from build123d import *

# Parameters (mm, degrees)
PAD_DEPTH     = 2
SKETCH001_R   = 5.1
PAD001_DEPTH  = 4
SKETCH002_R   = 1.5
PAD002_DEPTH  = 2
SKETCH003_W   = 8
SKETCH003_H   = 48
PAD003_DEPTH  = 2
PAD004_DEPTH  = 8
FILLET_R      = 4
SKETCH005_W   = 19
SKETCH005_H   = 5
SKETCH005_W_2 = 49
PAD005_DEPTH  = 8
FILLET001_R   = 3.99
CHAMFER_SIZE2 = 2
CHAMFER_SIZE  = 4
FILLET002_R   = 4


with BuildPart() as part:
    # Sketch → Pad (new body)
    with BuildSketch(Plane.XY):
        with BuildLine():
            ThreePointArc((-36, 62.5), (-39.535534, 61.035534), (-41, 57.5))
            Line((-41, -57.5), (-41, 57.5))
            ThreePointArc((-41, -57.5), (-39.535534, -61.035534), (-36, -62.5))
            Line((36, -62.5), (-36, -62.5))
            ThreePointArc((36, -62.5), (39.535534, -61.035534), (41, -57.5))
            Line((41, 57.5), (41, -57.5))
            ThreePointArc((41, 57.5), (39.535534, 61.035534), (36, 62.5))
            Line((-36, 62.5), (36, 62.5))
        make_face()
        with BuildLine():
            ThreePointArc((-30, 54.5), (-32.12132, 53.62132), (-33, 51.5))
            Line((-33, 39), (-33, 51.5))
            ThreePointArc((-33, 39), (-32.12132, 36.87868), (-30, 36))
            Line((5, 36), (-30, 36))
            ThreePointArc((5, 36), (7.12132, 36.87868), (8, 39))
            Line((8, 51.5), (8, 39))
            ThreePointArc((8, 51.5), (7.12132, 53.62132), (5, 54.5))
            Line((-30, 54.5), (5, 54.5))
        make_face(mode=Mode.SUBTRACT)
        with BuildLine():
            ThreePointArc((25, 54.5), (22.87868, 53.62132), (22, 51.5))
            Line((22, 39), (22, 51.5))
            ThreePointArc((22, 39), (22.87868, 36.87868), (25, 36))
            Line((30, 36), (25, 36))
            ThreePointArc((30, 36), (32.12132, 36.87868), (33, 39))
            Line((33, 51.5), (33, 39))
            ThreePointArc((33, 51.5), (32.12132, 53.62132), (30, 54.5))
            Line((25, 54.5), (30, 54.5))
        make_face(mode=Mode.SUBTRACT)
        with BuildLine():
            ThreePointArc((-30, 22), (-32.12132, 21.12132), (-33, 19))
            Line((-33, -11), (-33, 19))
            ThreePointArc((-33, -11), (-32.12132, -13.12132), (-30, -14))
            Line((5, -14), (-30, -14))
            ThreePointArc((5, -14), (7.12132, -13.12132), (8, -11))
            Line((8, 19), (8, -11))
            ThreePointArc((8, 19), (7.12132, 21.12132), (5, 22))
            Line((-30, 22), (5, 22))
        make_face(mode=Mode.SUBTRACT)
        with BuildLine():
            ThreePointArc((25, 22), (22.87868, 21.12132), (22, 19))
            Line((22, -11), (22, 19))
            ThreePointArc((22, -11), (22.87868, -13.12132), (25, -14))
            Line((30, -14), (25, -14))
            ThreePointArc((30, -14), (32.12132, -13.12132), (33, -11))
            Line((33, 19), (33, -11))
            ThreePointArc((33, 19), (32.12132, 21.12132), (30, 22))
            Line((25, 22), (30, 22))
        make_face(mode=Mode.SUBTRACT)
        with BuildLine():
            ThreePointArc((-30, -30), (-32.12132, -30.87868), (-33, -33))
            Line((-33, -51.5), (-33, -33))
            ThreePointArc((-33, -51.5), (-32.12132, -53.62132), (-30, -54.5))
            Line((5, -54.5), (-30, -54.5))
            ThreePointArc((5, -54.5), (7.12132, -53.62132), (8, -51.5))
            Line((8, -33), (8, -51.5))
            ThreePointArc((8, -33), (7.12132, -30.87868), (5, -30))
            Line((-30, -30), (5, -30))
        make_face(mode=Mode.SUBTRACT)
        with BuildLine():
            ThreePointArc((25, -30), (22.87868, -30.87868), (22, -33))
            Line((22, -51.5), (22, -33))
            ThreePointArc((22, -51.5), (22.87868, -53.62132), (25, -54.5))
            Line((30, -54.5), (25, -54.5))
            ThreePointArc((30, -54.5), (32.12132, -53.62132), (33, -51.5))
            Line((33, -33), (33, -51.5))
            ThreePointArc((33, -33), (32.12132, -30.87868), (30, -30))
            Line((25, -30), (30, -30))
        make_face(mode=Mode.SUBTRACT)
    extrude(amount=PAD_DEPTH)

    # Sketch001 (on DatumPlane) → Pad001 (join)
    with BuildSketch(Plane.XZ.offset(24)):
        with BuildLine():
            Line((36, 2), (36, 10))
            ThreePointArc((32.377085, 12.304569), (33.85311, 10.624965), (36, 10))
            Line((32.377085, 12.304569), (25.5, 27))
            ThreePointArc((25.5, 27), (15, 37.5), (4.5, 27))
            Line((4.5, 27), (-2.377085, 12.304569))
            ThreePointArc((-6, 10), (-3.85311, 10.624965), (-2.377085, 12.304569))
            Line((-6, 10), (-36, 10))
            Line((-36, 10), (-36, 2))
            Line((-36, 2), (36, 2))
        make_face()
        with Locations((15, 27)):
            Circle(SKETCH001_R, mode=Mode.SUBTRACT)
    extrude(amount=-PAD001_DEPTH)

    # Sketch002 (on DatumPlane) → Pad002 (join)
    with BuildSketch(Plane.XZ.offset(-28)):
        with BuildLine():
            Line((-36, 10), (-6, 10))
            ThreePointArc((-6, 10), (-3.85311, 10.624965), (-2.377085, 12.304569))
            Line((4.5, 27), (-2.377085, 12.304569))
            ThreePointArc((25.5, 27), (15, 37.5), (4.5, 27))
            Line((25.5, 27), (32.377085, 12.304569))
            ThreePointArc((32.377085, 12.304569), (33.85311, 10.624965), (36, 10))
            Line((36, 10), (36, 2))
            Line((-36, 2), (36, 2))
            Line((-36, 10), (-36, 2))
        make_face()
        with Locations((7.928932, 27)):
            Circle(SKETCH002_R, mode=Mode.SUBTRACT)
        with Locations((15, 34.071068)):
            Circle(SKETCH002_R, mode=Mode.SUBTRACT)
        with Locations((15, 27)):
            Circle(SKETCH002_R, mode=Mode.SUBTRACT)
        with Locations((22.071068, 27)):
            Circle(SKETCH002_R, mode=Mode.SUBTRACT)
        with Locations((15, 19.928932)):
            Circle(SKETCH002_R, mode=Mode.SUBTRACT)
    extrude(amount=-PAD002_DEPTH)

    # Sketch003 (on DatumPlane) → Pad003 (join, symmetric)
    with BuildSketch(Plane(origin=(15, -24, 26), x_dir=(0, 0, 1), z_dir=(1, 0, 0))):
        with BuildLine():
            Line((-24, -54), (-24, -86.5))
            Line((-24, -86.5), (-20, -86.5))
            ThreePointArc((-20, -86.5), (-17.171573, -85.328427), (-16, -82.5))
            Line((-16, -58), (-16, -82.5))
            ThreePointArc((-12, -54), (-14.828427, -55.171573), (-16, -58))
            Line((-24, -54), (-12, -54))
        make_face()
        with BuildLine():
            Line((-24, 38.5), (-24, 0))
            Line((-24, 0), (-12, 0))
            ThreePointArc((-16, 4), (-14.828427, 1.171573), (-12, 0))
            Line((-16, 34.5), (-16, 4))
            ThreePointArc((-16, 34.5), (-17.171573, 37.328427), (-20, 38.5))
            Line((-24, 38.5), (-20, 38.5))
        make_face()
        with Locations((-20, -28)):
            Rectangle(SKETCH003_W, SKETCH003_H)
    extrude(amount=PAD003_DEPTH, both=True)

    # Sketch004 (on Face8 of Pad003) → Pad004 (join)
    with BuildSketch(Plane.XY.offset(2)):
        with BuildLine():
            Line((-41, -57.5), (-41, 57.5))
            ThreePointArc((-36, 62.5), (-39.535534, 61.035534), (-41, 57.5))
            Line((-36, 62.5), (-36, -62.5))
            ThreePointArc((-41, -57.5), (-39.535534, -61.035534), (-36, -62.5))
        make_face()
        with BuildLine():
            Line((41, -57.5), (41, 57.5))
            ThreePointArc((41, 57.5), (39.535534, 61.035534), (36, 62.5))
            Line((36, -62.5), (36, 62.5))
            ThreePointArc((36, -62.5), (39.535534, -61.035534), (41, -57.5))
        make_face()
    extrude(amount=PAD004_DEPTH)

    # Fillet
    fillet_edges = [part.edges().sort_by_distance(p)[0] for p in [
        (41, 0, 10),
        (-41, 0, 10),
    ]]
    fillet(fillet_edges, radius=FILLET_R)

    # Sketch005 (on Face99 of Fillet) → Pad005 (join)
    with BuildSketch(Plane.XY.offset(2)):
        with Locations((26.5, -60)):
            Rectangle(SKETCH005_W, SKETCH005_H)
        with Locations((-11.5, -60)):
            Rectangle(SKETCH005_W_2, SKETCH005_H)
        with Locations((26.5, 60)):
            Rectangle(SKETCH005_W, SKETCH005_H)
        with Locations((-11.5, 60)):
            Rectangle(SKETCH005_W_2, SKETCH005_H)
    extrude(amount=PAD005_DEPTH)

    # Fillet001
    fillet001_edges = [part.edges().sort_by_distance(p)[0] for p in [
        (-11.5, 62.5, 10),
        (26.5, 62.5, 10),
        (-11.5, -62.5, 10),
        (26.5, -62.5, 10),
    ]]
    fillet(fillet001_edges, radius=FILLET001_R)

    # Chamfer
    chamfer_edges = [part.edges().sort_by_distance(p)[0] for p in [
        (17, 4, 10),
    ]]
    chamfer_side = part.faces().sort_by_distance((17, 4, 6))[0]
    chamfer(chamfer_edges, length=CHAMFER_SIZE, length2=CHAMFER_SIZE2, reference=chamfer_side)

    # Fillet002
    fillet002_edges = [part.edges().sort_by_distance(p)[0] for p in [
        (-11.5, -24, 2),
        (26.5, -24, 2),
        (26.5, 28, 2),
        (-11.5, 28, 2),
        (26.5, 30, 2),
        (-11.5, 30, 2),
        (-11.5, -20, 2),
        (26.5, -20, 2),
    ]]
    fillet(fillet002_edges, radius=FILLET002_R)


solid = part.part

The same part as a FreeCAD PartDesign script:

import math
import FreeCAD as App
import Part
import Sketcher

V = App.Vector


def edges_at(feature, points):
    """Names of the edges that pass closest to the given points."""
    edges = feature.Shape.Edges
    near = lambda p: min(range(len(edges)), key=lambda i: edges[i].distToShape(Part.Vertex(*p))[0])
    return sorted({f"Edge{near(p) + 1}" for p in points})


def add_polygon(sketch, points):
    """Adds a closed chain of lines whose ends are joined by coincident constraints."""
    first, n = sketch.GeometryCount, len(points)
    for a, b in zip(points, points[1:] + points[:1]):
        sketch.addGeometry(Part.LineSegment(App.Vector(*a, 0), App.Vector(*b, 0)), False)
    for i in range(n):
        sketch.addConstraint(Sketcher.Constraint("Coincident", first + i, 2, first + (i + 1) % n, 1))

doc = App.newDocument("Part")
body = doc.addObject("PartDesign::Body", "Body")

# Sketch on XY plane
sketch1 = body.newObject("Sketcher::SketchObject", "Sketch")
sketch1.AttachmentSupport = (doc.getObject("XY_Plane"), [""])
sketch1.MapMode = "FlatFace"
sketch1.addGeometry(Part.ArcOfCircle(Part.Circle(V(-36, 57.5, 0), V(0, 0, 1), 5), math.radians(90), math.radians(180)), False)
sketch1.addGeometry(Part.LineSegment(V(-41, 57.5, 0), V(-41, -57.5, 0)), False)
sketch1.addGeometry(Part.ArcOfCircle(Part.Circle(V(-36, -57.5, 0), V(0, 0, 1), 5), math.radians(180), math.radians(270)), False)
sketch1.addGeometry(Part.LineSegment(V(-36, -62.5, 0), V(36, -62.5, 0)), False)
sketch1.addGeometry(Part.ArcOfCircle(Part.Circle(V(36, -57.5, 0), V(0, 0, 1), 5), math.radians(-90), math.radians(0)), False)
sketch1.addGeometry(Part.LineSegment(V(41, -57.5, 0), V(41, 57.5, 0)), False)
sketch1.addGeometry(Part.ArcOfCircle(Part.Circle(V(36, 57.5, 0), V(0, 0, 1), 5), math.radians(0), math.radians(90)), False)
sketch1.addGeometry(Part.LineSegment(V(36, 62.5, 0), V(-36, 62.5, 0)), False)
sketch1.addGeometry(Part.ArcOfCircle(Part.Circle(V(-30, -33, 0), V(0, 0, 1), 3), math.radians(90), math.radians(180)), False)
sketch1.addGeometry(Part.LineSegment(V(-30, -30, 0), V(5, -30, 0)), False)
sketch1.addGeometry(Part.ArcOfCircle(Part.Circle(V(5, -33, 0), V(0, 0, 1), 3), math.radians(0), math.radians(90)), False)
sketch1.addGeometry(Part.LineSegment(V(8, -33, 0), V(8, -51.5, 0)), False)
sketch1.addGeometry(Part.ArcOfCircle(Part.Circle(V(5, -51.5, 0), V(0, 0, 1), 3), math.radians(-90), math.radians(0)), False)
sketch1.addGeometry(Part.LineSegment(V(5, -54.5, 0), V(-30, -54.5, 0)), False)
sketch1.addGeometry(Part.ArcOfCircle(Part.Circle(V(-30, -51.5, 0), V(0, 0, 1), 3), math.radians(-180), math.radians(-90)), False)
sketch1.addGeometry(Part.LineSegment(V(-33, -51.5, 0), V(-33, -33, 0)), False)
sketch1.addGeometry(Part.ArcOfCircle(Part.Circle(V(25, -33, 0), V(0, 0, 1), 3), math.radians(90), math.radians(180)), False)
sketch1.addGeometry(Part.LineSegment(V(25, -30, 0), V(30, -30, 0)), False)
sketch1.addGeometry(Part.ArcOfCircle(Part.Circle(V(30, -33, 0), V(0, 0, 1), 3), math.radians(0), math.radians(90)), False)
sketch1.addGeometry(Part.LineSegment(V(33, -33, 0), V(33, -51.5, 0)), False)
sketch1.addGeometry(Part.ArcOfCircle(Part.Circle(V(30, -51.5, 0), V(0, 0, 1), 3), math.radians(-90), math.radians(0)), False)
sketch1.addGeometry(Part.LineSegment(V(30, -54.5, 0), V(25, -54.5, 0)), False)
sketch1.addGeometry(Part.ArcOfCircle(Part.Circle(V(25, -51.5, 0), V(0, 0, 1), 3), math.radians(-180), math.radians(-90)), False)
sketch1.addGeometry(Part.LineSegment(V(22, -51.5, 0), V(22, -33, 0)), False)
sketch1.addGeometry(Part.ArcOfCircle(Part.Circle(V(-30, 19, 0), V(0, 0, 1), 3), math.radians(90), math.radians(180)), False)
sketch1.addGeometry(Part.LineSegment(V(-30, 22, 0), V(5, 22, 0)), False)
sketch1.addGeometry(Part.ArcOfCircle(Part.Circle(V(5, 19, 0), V(0, 0, 1), 3), math.radians(0), math.radians(90)), False)
sketch1.addGeometry(Part.LineSegment(V(8, 19, 0), V(8, -11, 0)), False)
sketch1.addGeometry(Part.ArcOfCircle(Part.Circle(V(5, -11, 0), V(0, 0, 1), 3), math.radians(-90), math.radians(0)), False)
sketch1.addGeometry(Part.LineSegment(V(5, -14, 0), V(-30, -14, 0)), False)
sketch1.addGeometry(Part.ArcOfCircle(Part.Circle(V(-30, -11, 0), V(0, 0, 1), 3), math.radians(-180), math.radians(-90)), False)
sketch1.addGeometry(Part.LineSegment(V(-33, -11, 0), V(-33, 19, 0)), False)
sketch1.addGeometry(Part.ArcOfCircle(Part.Circle(V(-30, 51.5, 0), V(0, 0, 1), 3), math.radians(90), math.radians(180)), False)
sketch1.addGeometry(Part.LineSegment(V(-30, 54.5, 0), V(5, 54.5, 0)), False)
sketch1.addGeometry(Part.ArcOfCircle(Part.Circle(V(5, 51.5, 0), V(0, 0, 1), 3), math.radians(0), math.radians(90)), False)
sketch1.addGeometry(Part.LineSegment(V(8, 51.5, 0), V(8, 39, 0)), False)
sketch1.addGeometry(Part.ArcOfCircle(Part.Circle(V(5, 39, 0), V(0, 0, 1), 3), math.radians(-90), math.radians(0)), False)
sketch1.addGeometry(Part.LineSegment(V(5, 36, 0), V(-30, 36, 0)), False)
sketch1.addGeometry(Part.ArcOfCircle(Part.Circle(V(-30, 39, 0), V(0, 0, 1), 3), math.radians(-180), math.radians(-90)), False)
sketch1.addGeometry(Part.LineSegment(V(-33, 39, 0), V(-33, 51.5, 0)), False)
sketch1.addGeometry(Part.ArcOfCircle(Part.Circle(V(25, 19, 0), V(0, 0, 1), 3), math.radians(90), math.radians(180)), False)
sketch1.addGeometry(Part.LineSegment(V(25, 22, 0), V(30, 22, 0)), False)
sketch1.addGeometry(Part.ArcOfCircle(Part.Circle(V(30, 19, 0), V(0, 0, 1), 3), math.radians(0), math.radians(90)), False)
sketch1.addGeometry(Part.LineSegment(V(33, 19, 0), V(33, -11, 0)), False)
sketch1.addGeometry(Part.ArcOfCircle(Part.Circle(V(30, -11, 0), V(0, 0, 1), 3), math.radians(-90), math.radians(0)), False)
sketch1.addGeometry(Part.LineSegment(V(30, -14, 0), V(25, -14, 0)), False)
sketch1.addGeometry(Part.ArcOfCircle(Part.Circle(V(25, -11, 0), V(0, 0, 1), 3), math.radians(-180), math.radians(-90)), False)
sketch1.addGeometry(Part.LineSegment(V(22, -11, 0), V(22, 19, 0)), False)
sketch1.addGeometry(Part.ArcOfCircle(Part.Circle(V(25, 51.5, 0), V(0, 0, 1), 3), math.radians(90), math.radians(180)), False)
sketch1.addGeometry(Part.LineSegment(V(25, 54.5, 0), V(30, 54.5, 0)), False)
sketch1.addGeometry(Part.ArcOfCircle(Part.Circle(V(30, 51.5, 0), V(0, 0, 1), 3), math.radians(0), math.radians(90)), False)
sketch1.addGeometry(Part.LineSegment(V(33, 51.5, 0), V(33, 39, 0)), False)
sketch1.addGeometry(Part.ArcOfCircle(Part.Circle(V(30, 39, 0), V(0, 0, 1), 3), math.radians(-90), math.radians(0)), False)
sketch1.addGeometry(Part.LineSegment(V(30, 36, 0), V(25, 36, 0)), False)
sketch1.addGeometry(Part.ArcOfCircle(Part.Circle(V(25, 39, 0), V(0, 0, 1), 3), math.radians(-180), math.radians(-90)), False)
sketch1.addGeometry(Part.LineSegment(V(22, 39, 0), V(22, 51.5, 0)), False)
sketch1.addConstraint(Sketcher.Constraint("Tangent", 0, 2, 1, 1))
sketch1.addConstraint(Sketcher.Constraint("Tangent", 1, 2, 2, 1))
sketch1.addConstraint(Sketcher.Constraint("Tangent", 2, 2, 3, 1))
sketch1.addConstraint(Sketcher.Constraint("Tangent", 3, 2, 4, 1))
sketch1.addConstraint(Sketcher.Constraint("Tangent", 4, 2, 5, 1))
sketch1.addConstraint(Sketcher.Constraint("Tangent", 5, 2, 6, 1))
sketch1.addConstraint(Sketcher.Constraint("Tangent", 6, 2, 7, 1))
sketch1.addConstraint(Sketcher.Constraint("Tangent", 7, 2, 0, 1))
sketch1.addConstraint(Sketcher.Constraint("Tangent", 8, 1, 9, 1))
sketch1.addConstraint(Sketcher.Constraint("Tangent", 9, 2, 10, 2))
sketch1.addConstraint(Sketcher.Constraint("Tangent", 10, 1, 11, 1))
sketch1.addConstraint(Sketcher.Constraint("Tangent", 11, 2, 12, 2))
sketch1.addConstraint(Sketcher.Constraint("Tangent", 12, 1, 13, 1))
sketch1.addConstraint(Sketcher.Constraint("Tangent", 13, 2, 14, 2))
sketch1.addConstraint(Sketcher.Constraint("Tangent", 14, 1, 15, 1))
sketch1.addConstraint(Sketcher.Constraint("Tangent", 15, 2, 8, 2))
sketch1.addConstraint(Sketcher.Constraint("Tangent", 16, 1, 17, 1))
sketch1.addConstraint(Sketcher.Constraint("Tangent", 17, 2, 18, 2))
sketch1.addConstraint(Sketcher.Constraint("Tangent", 18, 1, 19, 1))
sketch1.addConstraint(Sketcher.Constraint("Tangent", 19, 2, 20, 2))
sketch1.addConstraint(Sketcher.Constraint("Tangent", 20, 1, 21, 1))
sketch1.addConstraint(Sketcher.Constraint("Tangent", 21, 2, 22, 2))
sketch1.addConstraint(Sketcher.Constraint("Tangent", 22, 1, 23, 1))
sketch1.addConstraint(Sketcher.Constraint("Tangent", 23, 2, 16, 2))
sketch1.addConstraint(Sketcher.Constraint("Tangent", 24, 1, 25, 1))
sketch1.addConstraint(Sketcher.Constraint("Tangent", 25, 2, 26, 2))
sketch1.addConstraint(Sketcher.Constraint("Tangent", 26, 1, 27, 1))
sketch1.addConstraint(Sketcher.Constraint("Tangent", 27, 2, 28, 2))
sketch1.addConstraint(Sketcher.Constraint("Tangent", 28, 1, 29, 1))
sketch1.addConstraint(Sketcher.Constraint("Tangent", 29, 2, 30, 2))
sketch1.addConstraint(Sketcher.Constraint("Tangent", 30, 1, 31, 1))
sketch1.addConstraint(Sketcher.Constraint("Tangent", 31, 2, 24, 2))
sketch1.addConstraint(Sketcher.Constraint("Tangent", 32, 1, 33, 1))
sketch1.addConstraint(Sketcher.Constraint("Tangent", 33, 2, 34, 2))
sketch1.addConstraint(Sketcher.Constraint("Tangent", 34, 1, 35, 1))
sketch1.addConstraint(Sketcher.Constraint("Tangent", 35, 2, 36, 2))
sketch1.addConstraint(Sketcher.Constraint("Tangent", 36, 1, 37, 1))
sketch1.addConstraint(Sketcher.Constraint("Tangent", 37, 2, 38, 2))
sketch1.addConstraint(Sketcher.Constraint("Tangent", 38, 1, 39, 1))
sketch1.addConstraint(Sketcher.Constraint("Tangent", 39, 2, 32, 2))
sketch1.addConstraint(Sketcher.Constraint("Tangent", 40, 1, 41, 1))
sketch1.addConstraint(Sketcher.Constraint("Tangent", 41, 2, 42, 2))
sketch1.addConstraint(Sketcher.Constraint("Tangent", 42, 1, 43, 1))
sketch1.addConstraint(Sketcher.Constraint("Tangent", 43, 2, 44, 2))
sketch1.addConstraint(Sketcher.Constraint("Tangent", 44, 1, 45, 1))
sketch1.addConstraint(Sketcher.Constraint("Tangent", 45, 2, 46, 2))
sketch1.addConstraint(Sketcher.Constraint("Tangent", 46, 1, 47, 1))
sketch1.addConstraint(Sketcher.Constraint("Tangent", 47, 2, 40, 2))
sketch1.addConstraint(Sketcher.Constraint("Tangent", 48, 1, 49, 1))
sketch1.addConstraint(Sketcher.Constraint("Tangent", 49, 2, 50, 2))
sketch1.addConstraint(Sketcher.Constraint("Tangent", 50, 1, 51, 1))
sketch1.addConstraint(Sketcher.Constraint("Tangent", 51, 2, 52, 2))
sketch1.addConstraint(Sketcher.Constraint("Tangent", 52, 1, 53, 1))
sketch1.addConstraint(Sketcher.Constraint("Tangent", 53, 2, 54, 2))
sketch1.addConstraint(Sketcher.Constraint("Tangent", 54, 1, 55, 1))
sketch1.addConstraint(Sketcher.Constraint("Tangent", 55, 2, 48, 2))
sketch1.addConstraint(Sketcher.Constraint("Vertical", 1))
sketch1.addConstraint(Sketcher.Constraint("Horizontal", 3))
sketch1.addConstraint(Sketcher.Constraint("Vertical", 5))
sketch1.addConstraint(Sketcher.Constraint("Horizontal", 7))
sketch1.addConstraint(Sketcher.Constraint("Horizontal", 9))
sketch1.addConstraint(Sketcher.Constraint("Vertical", 11))
sketch1.addConstraint(Sketcher.Constraint("Horizontal", 13))
sketch1.addConstraint(Sketcher.Constraint("Vertical", 15))
sketch1.addConstraint(Sketcher.Constraint("Horizontal", 17))
sketch1.addConstraint(Sketcher.Constraint("Vertical", 19))
sketch1.addConstraint(Sketcher.Constraint("Horizontal", 21))
sketch1.addConstraint(Sketcher.Constraint("Vertical", 23))
sketch1.addConstraint(Sketcher.Constraint("Horizontal", 25))
sketch1.addConstraint(Sketcher.Constraint("Vertical", 27))
sketch1.addConstraint(Sketcher.Constraint("Horizontal", 29))
sketch1.addConstraint(Sketcher.Constraint("Vertical", 31))
sketch1.addConstraint(Sketcher.Constraint("Horizontal", 33))
sketch1.addConstraint(Sketcher.Constraint("Vertical", 35))
sketch1.addConstraint(Sketcher.Constraint("Horizontal", 37))
sketch1.addConstraint(Sketcher.Constraint("Vertical", 39))
sketch1.addConstraint(Sketcher.Constraint("Horizontal", 41))
sketch1.addConstraint(Sketcher.Constraint("Vertical", 43))
sketch1.addConstraint(Sketcher.Constraint("Horizontal", 45))
sketch1.addConstraint(Sketcher.Constraint("Vertical", 47))
sketch1.addConstraint(Sketcher.Constraint("Horizontal", 49))
sketch1.addConstraint(Sketcher.Constraint("Vertical", 51))
sketch1.addConstraint(Sketcher.Constraint("Horizontal", 53))
sketch1.addConstraint(Sketcher.Constraint("Vertical", 55))
sketch1.addConstraint(Sketcher.Constraint("Equal", 0, 2))
sketch1.addConstraint(Sketcher.Constraint("Equal", 2, 4))
sketch1.addConstraint(Sketcher.Constraint("Equal", 4, 6))
sketch1.addConstraint(Sketcher.Constraint("Equal", 8, 10))
sketch1.addConstraint(Sketcher.Constraint("Equal", 10, 12))
sketch1.addConstraint(Sketcher.Constraint("Equal", 12, 14))
sketch1.addConstraint(Sketcher.Constraint("Equal", 14, 16))
sketch1.addConstraint(Sketcher.Constraint("Equal", 16, 18))
sketch1.addConstraint(Sketcher.Constraint("Equal", 18, 20))
sketch1.addConstraint(Sketcher.Constraint("Equal", 20, 22))
sketch1.addConstraint(Sketcher.Constraint("Equal", 22, 24))
sketch1.addConstraint(Sketcher.Constraint("Equal", 24, 26))
sketch1.addConstraint(Sketcher.Constraint("Equal", 26, 28))
sketch1.addConstraint(Sketcher.Constraint("Equal", 28, 30))
sketch1.addConstraint(Sketcher.Constraint("Equal", 30, 32))
sketch1.addConstraint(Sketcher.Constraint("Equal", 32, 34))
sketch1.addConstraint(Sketcher.Constraint("Equal", 34, 36))
sketch1.addConstraint(Sketcher.Constraint("Equal", 36, 38))
sketch1.addConstraint(Sketcher.Constraint("Equal", 38, 40))
sketch1.addConstraint(Sketcher.Constraint("Equal", 40, 42))
sketch1.addConstraint(Sketcher.Constraint("Equal", 42, 44))
sketch1.addConstraint(Sketcher.Constraint("Equal", 44, 46))
sketch1.addConstraint(Sketcher.Constraint("Equal", 46, 48))
sketch1.addConstraint(Sketcher.Constraint("Equal", 48, 50))
sketch1.addConstraint(Sketcher.Constraint("Equal", 50, 52))
sketch1.addConstraint(Sketcher.Constraint("Equal", 52, 54))
sketch1.addConstraint(Sketcher.Constraint("Symmetric", 0, 3, 4, 3, -1, 1))
sketch1.addConstraint(Sketcher.Constraint("Symmetric", 20, 3, 32, 3, -1, 1))
sketch1.addConstraint(Sketcher.Constraint("Symmetric", 14, 3, 50, 3, -1, 1))
sketch1.addConstraint(Sketcher.Constraint("Symmetric", 8, 3, 18, 3, -2))
sketch1.addConstraint(Sketcher.Constraint("Symmetric", 24, 3, 42, 3, -2))
sketch1.addConstraint(Sketcher.Constraint("Symmetric", 12, 3, 34, 3, -1))
sketch1.addConstraint(Sketcher.Constraint("Horizontal", 30, 3, 44, 3))
sketch1.addConstraint(Sketcher.Constraint("Horizontal", 38, 3, 52, 3))
sketch1.addConstraint(Sketcher.Constraint("Vertical", 14, 3, 24, 3))
sketch1.addConstraint(Sketcher.Constraint("Vertical", 12, 3, 26, 3))
sketch1.addConstraint(Sketcher.Constraint("Vertical", 22, 3, 40, 3))
sketch1.addConstraint(Sketcher.Constraint("Vertical", 46, 3, 48, 3))
sketch1.addConstraint(Sketcher.Constraint("Radius", 0, 5.0))
sketch1.addConstraint(Sketcher.Constraint("Radius", 8, 3.000001))
sketch1.addConstraint(Sketcher.Constraint("DistanceX", 3, 1, 3, 2, 72.0))
sketch1.addConstraint(Sketcher.Constraint("DistanceX", 9, 1, 9, 2, 35.0))
sketch1.addConstraint(Sketcher.Constraint("DistanceX", 17, 1, 17, 2, 5.0))
sketch1.addConstraint(Sketcher.Constraint("DistanceY", 1, 2, 1, 1, 115.0))
sketch1.addConstraint(Sketcher.Constraint("DistanceY", 27, 2, 27, 1, 30.0))
sketch1.addConstraint(Sketcher.Constraint("DistanceY", 11, 2, 11, 1, 18.5))
sketch1.addConstraint(Sketcher.Constraint("DistanceY", 35, 2, 35, 1, 12.5))
sketch1.addConstraint(Sketcher.Constraint("DistanceX", 8, 3, -1, 1, 29.999999))
sketch1.addConstraint(Sketcher.Constraint("DistanceY", 8, 3, -1, 1, 33.000001))
sketch1.addConstraint(Sketcher.Constraint("DistanceY", -1, 1, 24, 3, 18.999999))
pad1 = body.newObject("PartDesign::Pad", "Pad")
pad1.Profile = sketch1
pad1.Length = 2

# Sketch on XZ plane
sketch2 = body.newObject("Sketcher::SketchObject", "Sketch001")
sketch2.AttachmentSupport = (doc.getObject("XZ_Plane"), [""])
sketch2.MapMode = "FlatFace"
sketch2.AttachmentOffset = App.Placement(V(0, 0, 24), App.Rotation())
sketch2.addGeometry(Part.LineSegment(V(36, 2, 0), V(36, 10, 0)), False)
sketch2.addGeometry(Part.ArcOfCircle(Part.Circle(V(36, 14, 0), V(0, 0, 1), 4), math.radians(-155), math.radians(-90)), False)
sketch2.addGeometry(Part.LineSegment(V(32.4, 12.3, 0), V(25.5, 27, 0)), False)
sketch2.addGeometry(Part.ArcOfCircle(Part.Circle(V(15, 27, 0), V(0, 0, 1), 10.5), math.radians(0), math.radians(180)), False)
sketch2.addGeometry(Part.LineSegment(V(4.5, 27, 0), V(-2.4, 12.3, 0)), False)
sketch2.addGeometry(Part.ArcOfCircle(Part.Circle(V(-6, 14, 0), V(0, 0, 1), 4), math.radians(-90), math.radians(-25)), False)
sketch2.addGeometry(Part.LineSegment(V(-6, 10, 0), V(-36, 10, 0)), False)
sketch2.addGeometry(Part.LineSegment(V(-36, 10, 0), V(-36, 2, 0)), False)
sketch2.addGeometry(Part.LineSegment(V(-36, 2, 0), V(36, 2, 0)), False)
sketch2.addGeometry(Part.Circle(V(15, 27, 0), V(0, 0, 1), 5.1), False)
sketch2.addConstraint(Sketcher.Constraint("Coincident", 0, 2, 1, 2))
sketch2.addConstraint(Sketcher.Constraint("Tangent", 1, 1, 2, 1))
sketch2.addConstraint(Sketcher.Constraint("Coincident", 2, 2, 3, 1))
sketch2.addConstraint(Sketcher.Constraint("Coincident", 3, 2, 4, 1))
sketch2.addConstraint(Sketcher.Constraint("Tangent", 4, 2, 5, 2))
sketch2.addConstraint(Sketcher.Constraint("Tangent", 5, 1, 6, 1))
sketch2.addConstraint(Sketcher.Constraint("Coincident", 6, 2, 7, 1))
sketch2.addConstraint(Sketcher.Constraint("Coincident", 7, 2, 8, 1))
sketch2.addConstraint(Sketcher.Constraint("Coincident", 8, 2, 0, 1))
sketch2.addConstraint(Sketcher.Constraint("Vertical", 0))
sketch2.addConstraint(Sketcher.Constraint("Horizontal", 6))
sketch2.addConstraint(Sketcher.Constraint("Vertical", 7))
sketch2.addConstraint(Sketcher.Constraint("Horizontal", 8))
sketch2.addConstraint(Sketcher.Constraint("Coincident", 9, 3, 3, 3))
sketch2.addConstraint(Sketcher.Constraint("Equal", 1, 5))
sketch2.addConstraint(Sketcher.Constraint("Symmetric", 0, 2, 6, 2, -2))
sketch2.addConstraint(Sketcher.Constraint("Horizontal", 9, 3, 2, 2))
sketch2.addConstraint(Sketcher.Constraint("Horizontal", 2, 2, 3, 2))
sketch2.addConstraint(Sketcher.Constraint("Horizontal", 1, 1, 4, 2))
sketch2.addConstraint(Sketcher.Constraint("Vertical", 1, 3, 0, 2))
sketch2.addConstraint(Sketcher.Constraint("Radius", 1, 4.000001))
sketch2.addConstraint(Sketcher.Constraint("Diameter", 9, 10.2))
sketch2.addConstraint(Sketcher.Constraint("Radius", 3, 10.5))
sketch2.addConstraint(Sketcher.Constraint("DistanceX", 6, 2, 6, 1, 30.0))
sketch2.addConstraint(Sketcher.Constraint("DistanceX", 8, 1, 8, 2, 72.0))
sketch2.addConstraint(Sketcher.Constraint("DistanceY", 0, 1, 0, 2, 8.0))
sketch2.addConstraint(Sketcher.Constraint("DistanceY", -1, 1, 1, 3, 14.000001))
sketch2.addConstraint(Sketcher.Constraint("DistanceY", -1, 1, 3, 3, 27.0))
pad2 = body.newObject("PartDesign::Pad", "Pad001")
pad2.Profile = sketch2
pad2.Length = 4
pad2.Reversed = True

# Sketch on XZ plane
sketch3 = body.newObject("Sketcher::SketchObject", "Sketch002")
sketch3.AttachmentSupport = (doc.getObject("XZ_Plane"), [""])
sketch3.MapMode = "FlatFace"
sketch3.AttachmentOffset = App.Placement(V(0, 0, -28), App.Rotation())
sketch3.addGeometry(Part.LineSegment(V(-6, 10, 0), V(-36, 10, 0)), False)
sketch3.addGeometry(Part.LineSegment(V(-36, 10, 0), V(-36, 2, 0)), False)
sketch3.addGeometry(Part.LineSegment(V(-36, 2, 0), V(36, 2, 0)), False)
sketch3.addGeometry(Part.LineSegment(V(36, 2, 0), V(36, 10, 0)), False)
sketch3.addGeometry(Part.ArcOfCircle(Part.Circle(V(36, 14, 0), V(0, 0, 1), 4), math.radians(-155), math.radians(-90)), False)
sketch3.addGeometry(Part.LineSegment(V(32.4, 12.3, 0), V(25.5, 27, 0)), False)
sketch3.addGeometry(Part.ArcOfCircle(Part.Circle(V(15, 27, 0), V(0, 0, 1), 10.5), math.radians(0), math.radians(180)), False)
sketch3.addGeometry(Part.LineSegment(V(4.5, 27, 0), V(-2.4, 12.3, 0)), False)
sketch3.addGeometry(Part.ArcOfCircle(Part.Circle(V(-6, 14, 0), V(0, 0, 1), 4), math.radians(-90), math.radians(-25)), False)
sketch3.addGeometry(Part.Circle(V(15, 19.9, 0), V(0, 0, 1), 1.5), False)
sketch3.addGeometry(Part.Circle(V(22.1, 27, 0), V(0, 0, 1), 1.5), False)
sketch3.addGeometry(Part.Circle(V(15, 27, 0), V(0, 0, 1), 1.5), False)
sketch3.addGeometry(Part.Circle(V(15, 34.1, 0), V(0, 0, 1), 1.5), False)
sketch3.addGeometry(Part.Circle(V(7.9, 27, 0), V(0, 0, 1), 1.5), False)
sketch3.addConstraint(Sketcher.Constraint("Coincident", 0, 2, 1, 1))
sketch3.addConstraint(Sketcher.Constraint("Coincident", 1, 2, 2, 1))
sketch3.addConstraint(Sketcher.Constraint("Coincident", 2, 2, 3, 1))
sketch3.addConstraint(Sketcher.Constraint("Coincident", 3, 2, 4, 2))
sketch3.addConstraint(Sketcher.Constraint("Tangent", 4, 1, 5, 1))
sketch3.addConstraint(Sketcher.Constraint("Coincident", 5, 2, 6, 1))
sketch3.addConstraint(Sketcher.Constraint("Coincident", 6, 2, 7, 1))
sketch3.addConstraint(Sketcher.Constraint("Tangent", 7, 2, 8, 2))
sketch3.addConstraint(Sketcher.Constraint("Tangent", 8, 1, 0, 1))
sketch3.addConstraint(Sketcher.Constraint("Horizontal", 0))
sketch3.addConstraint(Sketcher.Constraint("Vertical", 1))
sketch3.addConstraint(Sketcher.Constraint("Horizontal", 2))
sketch3.addConstraint(Sketcher.Constraint("Vertical", 3))
sketch3.addConstraint(Sketcher.Constraint("Coincident", 11, 3, 6, 3))
sketch3.addConstraint(Sketcher.Constraint("Equal", 4, 8))
sketch3.addConstraint(Sketcher.Constraint("Equal", 9, 10))
sketch3.addConstraint(Sketcher.Constraint("Equal", 10, 11))
sketch3.addConstraint(Sketcher.Constraint("Equal", 11, 12))
sketch3.addConstraint(Sketcher.Constraint("Equal", 12, 13))
sketch3.addConstraint(Sketcher.Constraint("Symmetric", 0, 2, 3, 2, -2))
sketch3.addConstraint(Sketcher.Constraint("Horizontal", 6, 3, 10, 3))
sketch3.addConstraint(Sketcher.Constraint("Horizontal", 11, 3, 13, 3))
sketch3.addConstraint(Sketcher.Constraint("Horizontal", 13, 3, 5, 2))
sketch3.addConstraint(Sketcher.Constraint("Horizontal", 5, 2, 6, 2))
sketch3.addConstraint(Sketcher.Constraint("Horizontal", 4, 1, 7, 2))
sketch3.addConstraint(Sketcher.Constraint("Vertical", 6, 3, 9, 3))
sketch3.addConstraint(Sketcher.Constraint("Vertical", 11, 3, 12, 3))
sketch3.addConstraint(Sketcher.Constraint("Vertical", 4, 3, 2, 2))
sketch3.addConstraint(Sketcher.Constraint("Diameter", 9, 3.0))
sketch3.addConstraint(Sketcher.Constraint("Radius", 4, 4.000001))
sketch3.addConstraint(Sketcher.Constraint("Radius", 6, 10.5))
sketch3.addConstraint(Sketcher.Constraint("DistanceX", 0, 2, 0, 1, 30.0))
sketch3.addConstraint(Sketcher.Constraint("DistanceX", 2, 1, 2, 2, 72.0))
sketch3.addConstraint(Sketcher.Constraint("DistanceY", 1, 2, 1, 1, 8.0))
sketch3.addConstraint(Sketcher.Constraint("DistanceY", -1, 1, 4, 3, 14.000001))
sketch3.addConstraint(Sketcher.Constraint("DistanceY", -1, 1, 6, 3, 27.0))
sketch3.addConstraint(Sketcher.Constraint("DistanceY", -1, 1, 9, 3, 19.928932))
sketch3.addConstraint(Sketcher.Constraint("DistanceX", -1, 1, 10, 3, 22.071068))
sketch3.addConstraint(Sketcher.Constraint("DistanceX", -1, 1, 13, 3, 7.928932))
sketch3.addConstraint(Sketcher.Constraint("DistanceY", -1, 1, 12, 3, 34.071068))
pad3 = body.newObject("PartDesign::Pad", "Pad002")
pad3.Profile = sketch3
pad3.Length = 2
pad3.Reversed = True

# Sketch on YZ plane
sketch4 = body.newObject("Sketcher::SketchObject", "Sketch003")
sketch4.AttachmentSupport = (doc.getObject("YZ_Plane"), [""])
sketch4.MapMode = "FlatFace"
sketch4.AttachmentOffset = App.Placement(V(0, 0, 15), App.Rotation())
sketch4.addGeometry(Part.LineSegment(V(30, 2, 0), V(62.5, 2, 0)), False)  # 0
sketch4.addGeometry(Part.LineSegment(V(62.5, 2, 0), V(62.5, 6, 0)), False)  # 1
sketch4.addGeometry(Part.ArcOfCircle(Part.Circle(V(58.5, 6, 0), V(0, 0, 1), 4), math.radians(0), math.radians(90)), False)  # 2
sketch4.addGeometry(Part.LineSegment(V(58.5, 10, 0), V(34, 10, 0)), False)  # 3
sketch4.addGeometry(Part.ArcOfCircle(Part.Circle(V(34, 14, 0), V(0, 0, 1), 4), math.radians(-180), math.radians(-90)), False)  # 4
sketch4.addGeometry(Part.LineSegment(V(30, 14, 0), V(30, 2, 0)), False)  # 5
sketch4.addGeometry(Part.LineSegment(V(-62.5, 2, 0), V(-24, 2, 0)), False)  # 6
sketch4.addGeometry(Part.LineSegment(V(-24, 2, 0), V(-24, 14, 0)), False)  # 7
sketch4.addGeometry(Part.ArcOfCircle(Part.Circle(V(-28, 14, 0), V(0, 0, 1), 4), math.radians(-90), math.radians(0)), False)  # 8
sketch4.addGeometry(Part.LineSegment(V(-28, 10, 0), V(-58.5, 10, 0)), False)  # 9
sketch4.addGeometry(Part.ArcOfCircle(Part.Circle(V(-58.5, 6, 0), V(0, 0, 1), 4), math.radians(90), math.radians(180)), False)  # 10
sketch4.addGeometry(Part.LineSegment(V(-62.5, 6, 0), V(-62.5, 2, 0)), False)  # 11
add_polygon(sketch4, [(-20, 2), (28, 2), (28, 10), (-20, 10)])  # lines 12-15
sketch4.addConstraint(Sketcher.Constraint("Coincident", 0, 2, 1, 1))
sketch4.addConstraint(Sketcher.Constraint("Tangent", 1, 2, 2, 1))
sketch4.addConstraint(Sketcher.Constraint("Tangent", 2, 2, 3, 1))
sketch4.addConstraint(Sketcher.Constraint("Tangent", 3, 2, 4, 2))
sketch4.addConstraint(Sketcher.Constraint("Tangent", 4, 1, 5, 1))
sketch4.addConstraint(Sketcher.Constraint("Coincident", 5, 2, 0, 1))
sketch4.addConstraint(Sketcher.Constraint("Coincident", 6, 2, 7, 1))
sketch4.addConstraint(Sketcher.Constraint("Tangent", 7, 2, 8, 2))
sketch4.addConstraint(Sketcher.Constraint("Tangent", 8, 1, 9, 1))
sketch4.addConstraint(Sketcher.Constraint("Tangent", 9, 2, 10, 1))
sketch4.addConstraint(Sketcher.Constraint("Tangent", 10, 2, 11, 1))
sketch4.addConstraint(Sketcher.Constraint("Coincident", 11, 2, 6, 1))
sketch4.addConstraint(Sketcher.Constraint("Horizontal", 0))
sketch4.addConstraint(Sketcher.Constraint("Vertical", 1))
sketch4.addConstraint(Sketcher.Constraint("Horizontal", 3))
sketch4.addConstraint(Sketcher.Constraint("Vertical", 5))
sketch4.addConstraint(Sketcher.Constraint("Horizontal", 6))
sketch4.addConstraint(Sketcher.Constraint("Vertical", 7))
sketch4.addConstraint(Sketcher.Constraint("Horizontal", 9))
sketch4.addConstraint(Sketcher.Constraint("Vertical", 11))
sketch4.addConstraint(Sketcher.Constraint("Horizontal", 12))
sketch4.addConstraint(Sketcher.Constraint("Vertical", 13))
sketch4.addConstraint(Sketcher.Constraint("Horizontal", 14))
sketch4.addConstraint(Sketcher.Constraint("Vertical", 15))
sketch4.addConstraint(Sketcher.Constraint("Equal", 2, 4))
sketch4.addConstraint(Sketcher.Constraint("Equal", 4, 8))
sketch4.addConstraint(Sketcher.Constraint("Equal", 8, 10))
sketch4.addConstraint(Sketcher.Constraint("Symmetric", 2, 3, 10, 3, -2))
sketch4.addConstraint(Sketcher.Constraint("Symmetric", 8, 1, 13, 2, -2))
sketch4.addConstraint(Sketcher.Constraint("Horizontal", 5, 2, 6, 2))
sketch4.addConstraint(Sketcher.Constraint("Horizontal", 11, 2, 12, 2))
sketch4.addConstraint(Sketcher.Constraint("Radius", 2, 4.0))
sketch4.addConstraint(Sketcher.Constraint("DistanceX", 12, 1, 12, 2, 48.0))
sketch4.addConstraint(Sketcher.Constraint("DistanceY", 1, 1, 1, 2, 4.0))
sketch4.addConstraint(Sketcher.Constraint("DistanceX", 0, 1, 0, 2, 32.5))
sketch4.addConstraint(Sketcher.Constraint("DistanceX", 6, 1, 6, 2, 38.5))
sketch4.addConstraint(Sketcher.Constraint("DistanceY", -1, 1, 2, 3, 6.0))
sketch4.addConstraint(Sketcher.Constraint("DistanceX", -1, 1, 4, 3, 34.0))
pad4 = body.newObject("PartDesign::Pad", "Pad003")
pad4.Profile = sketch4
pad4.Length = 4
pad4.Midplane = True

# Sketch on XY plane
sketch5 = body.newObject("Sketcher::SketchObject", "Sketch004")
sketch5.AttachmentSupport = (doc.getObject("XY_Plane"), [""])
sketch5.MapMode = "FlatFace"
sketch5.AttachmentOffset = App.Placement(V(0, 0, 2), App.Rotation())
sketch5.addGeometry(Part.LineSegment(V(-41, 57.5, 0), V(-41, -57.5, 0)), False)
sketch5.addGeometry(Part.ArcOfCircle(Part.Circle(V(-36, -57.5, 0), V(0, 0, 1), 5), math.radians(180), math.radians(270)), False)
sketch5.addGeometry(Part.LineSegment(V(-36, -62.5, 0), V(-36, 62.5, 0)), False)
sketch5.addGeometry(Part.ArcOfCircle(Part.Circle(V(-36, 57.5, 0), V(0, 0, 1), 5), math.radians(90), math.radians(180)), False)
sketch5.addGeometry(Part.LineSegment(V(41, -57.5, 0), V(41, 57.5, 0)), False)
sketch5.addGeometry(Part.ArcOfCircle(Part.Circle(V(36, 57.5, 0), V(0, 0, 1), 5), math.radians(0), math.radians(90)), False)
sketch5.addGeometry(Part.LineSegment(V(36, 62.5, 0), V(36, -62.5, 0)), False)
sketch5.addGeometry(Part.ArcOfCircle(Part.Circle(V(36, -57.5, 0), V(0, 0, 1), 5), math.radians(-90), math.radians(0)), False)
sketch5.addConstraint(Sketcher.Constraint("Tangent", 0, 2, 1, 1))
sketch5.addConstraint(Sketcher.Constraint("Coincident", 1, 2, 2, 1))
sketch5.addConstraint(Sketcher.Constraint("Coincident", 2, 2, 3, 1))
sketch5.addConstraint(Sketcher.Constraint("Tangent", 3, 2, 0, 1))
sketch5.addConstraint(Sketcher.Constraint("Tangent", 4, 2, 5, 1))
sketch5.addConstraint(Sketcher.Constraint("Coincident", 5, 2, 6, 1))
sketch5.addConstraint(Sketcher.Constraint("Coincident", 6, 2, 7, 1))
sketch5.addConstraint(Sketcher.Constraint("Tangent", 7, 2, 4, 1))
sketch5.addConstraint(Sketcher.Constraint("Vertical", 0))
sketch5.addConstraint(Sketcher.Constraint("Vertical", 2))
sketch5.addConstraint(Sketcher.Constraint("Vertical", 4))
sketch5.addConstraint(Sketcher.Constraint("Vertical", 6))
sketch5.addConstraint(Sketcher.Constraint("Equal", 1, 3))
sketch5.addConstraint(Sketcher.Constraint("Equal", 3, 5))
sketch5.addConstraint(Sketcher.Constraint("Equal", 5, 7))
sketch5.addConstraint(Sketcher.Constraint("Symmetric", 1, 3, 5, 3, -1, 1))
sketch5.addConstraint(Sketcher.Constraint("Symmetric", 2, 2, 6, 2, -1, 1))
sketch5.addConstraint(Sketcher.Constraint("Horizontal", 3, 3, 5, 3))
sketch5.addConstraint(Sketcher.Constraint("Vertical", 3, 3, 1, 2))
sketch5.addConstraint(Sketcher.Constraint("Radius", 1, 5.0))
sketch5.addConstraint(Sketcher.Constraint("DistanceY", 0, 2, 0, 1, 115.0))
sketch5.addConstraint(Sketcher.Constraint("DistanceX", 1, 3, -1, 1, 36.0))
pad5 = body.newObject("PartDesign::Pad", "Pad004")
pad5.Profile = sketch5
pad5.Length = 8
doc.recompute()

fillet = body.newObject("PartDesign::Fillet", "Fillet")
fillet.Base = (pad5, edges_at(pad5, [(41, 0, 10), (-41, 0, 10)]))
fillet.Radius = 4

# Sketch on XY plane
sketch6 = body.newObject("Sketcher::SketchObject", "Sketch005")
sketch6.AttachmentSupport = (doc.getObject("XY_Plane"), [""])
sketch6.MapMode = "FlatFace"
sketch6.AttachmentOffset = App.Placement(V(0, 0, 2), App.Rotation())
add_polygon(sketch6, [(17, -58), (17, -62), (36, -62), (36, -58)])  # lines 0-3
add_polygon(sketch6, [(-36, -58), (-36, -62), (13, -62), (13, -58)])  # lines 4-7
add_polygon(sketch6, [(17, 62), (17, 58), (36, 58), (36, 62)])  # lines 8-11
add_polygon(sketch6, [(-36, 62), (-36, 58), (13, 58), (13, 62)])  # lines 12-15
sketch6.addConstraint(Sketcher.Constraint("Vertical", 0))
sketch6.addConstraint(Sketcher.Constraint("Horizontal", 1))
sketch6.addConstraint(Sketcher.Constraint("Vertical", 2))
sketch6.addConstraint(Sketcher.Constraint("Horizontal", 3))
sketch6.addConstraint(Sketcher.Constraint("Vertical", 4))
sketch6.addConstraint(Sketcher.Constraint("Horizontal", 5))
sketch6.addConstraint(Sketcher.Constraint("Vertical", 6))
sketch6.addConstraint(Sketcher.Constraint("Horizontal", 7))
sketch6.addConstraint(Sketcher.Constraint("Vertical", 8))
sketch6.addConstraint(Sketcher.Constraint("Horizontal", 9))
sketch6.addConstraint(Sketcher.Constraint("Vertical", 10))
sketch6.addConstraint(Sketcher.Constraint("Horizontal", 11))
sketch6.addConstraint(Sketcher.Constraint("Vertical", 12))
sketch6.addConstraint(Sketcher.Constraint("Horizontal", 13))
sketch6.addConstraint(Sketcher.Constraint("Vertical", 14))
sketch6.addConstraint(Sketcher.Constraint("Horizontal", 15))
sketch6.addConstraint(Sketcher.Constraint("Symmetric", 7, 2, 9, 2, -1, 1))
sketch6.addConstraint(Sketcher.Constraint("Symmetric", 2, 2, 12, 2, -1, 1))
sketch6.addConstraint(Sketcher.Constraint("Symmetric", 1, 2, 4, 2, -2))
sketch6.addConstraint(Sketcher.Constraint("Symmetric", 3, 2, 8, 2, -1))
sketch6.addConstraint(Sketcher.Constraint("Symmetric", 5, 2, 14, 2, -1))
sketch6.addConstraint(Sketcher.Constraint("Horizontal", 11, 2, 14, 2))
sketch6.addConstraint(Sketcher.Constraint("DistanceX", 1, 1, 1, 2, 19.0))
sketch6.addConstraint(Sketcher.Constraint("DistanceX", 5, 1, 5, 2, 49.0))
sketch6.addConstraint(Sketcher.Constraint("DistanceY", 0, 2, 0, 1, 5.0))
sketch6.addConstraint(Sketcher.Constraint("DistanceX", -1, 1, 0, 2, 17.0))
sketch6.addConstraint(Sketcher.Constraint("DistanceY", 3, 2, 8, 2, 115.0))
pad6 = body.newObject("PartDesign::Pad", "Pad005")
pad6.Profile = sketch6
pad6.Length = 8
doc.recompute()

fillet2 = body.newObject("PartDesign::Fillet", "Fillet001")
fillet2.Base = (pad6, edges_at(pad6, [
    (-11.5, 62.5, 10),
    (26.5, 62.5, 10),
    (-11.5, -62.5, 10),
    (26.5, -62.5, 10),
]))
fillet2.Radius = 3.99
doc.recompute()

chamfer = body.newObject("PartDesign::Chamfer", "Chamfer")
chamfer.Base = (fillet2, edges_at(fillet2, [(17, 4, 10)]))
chamfer.ChamferType = "Two distances"
chamfer.Size = 4
chamfer.Size2 = 2
chamfer.FlipDirection = True
doc.recompute()

fillet3 = body.newObject("PartDesign::Fillet", "Fillet002")
fillet3.Base = (chamfer, edges_at(chamfer, [
    (-11.5, -24, 2),
    (26.5, -24, 2),
    (26.5, 28, 2),
    (-11.5, 28, 2),
    (26.5, 30, 2),
    (-11.5, 30, 2),
    (-11.5, -20, 2),
    (26.5, -20, 2),
]))
fillet3.Radius = 4

doc.recompute()
